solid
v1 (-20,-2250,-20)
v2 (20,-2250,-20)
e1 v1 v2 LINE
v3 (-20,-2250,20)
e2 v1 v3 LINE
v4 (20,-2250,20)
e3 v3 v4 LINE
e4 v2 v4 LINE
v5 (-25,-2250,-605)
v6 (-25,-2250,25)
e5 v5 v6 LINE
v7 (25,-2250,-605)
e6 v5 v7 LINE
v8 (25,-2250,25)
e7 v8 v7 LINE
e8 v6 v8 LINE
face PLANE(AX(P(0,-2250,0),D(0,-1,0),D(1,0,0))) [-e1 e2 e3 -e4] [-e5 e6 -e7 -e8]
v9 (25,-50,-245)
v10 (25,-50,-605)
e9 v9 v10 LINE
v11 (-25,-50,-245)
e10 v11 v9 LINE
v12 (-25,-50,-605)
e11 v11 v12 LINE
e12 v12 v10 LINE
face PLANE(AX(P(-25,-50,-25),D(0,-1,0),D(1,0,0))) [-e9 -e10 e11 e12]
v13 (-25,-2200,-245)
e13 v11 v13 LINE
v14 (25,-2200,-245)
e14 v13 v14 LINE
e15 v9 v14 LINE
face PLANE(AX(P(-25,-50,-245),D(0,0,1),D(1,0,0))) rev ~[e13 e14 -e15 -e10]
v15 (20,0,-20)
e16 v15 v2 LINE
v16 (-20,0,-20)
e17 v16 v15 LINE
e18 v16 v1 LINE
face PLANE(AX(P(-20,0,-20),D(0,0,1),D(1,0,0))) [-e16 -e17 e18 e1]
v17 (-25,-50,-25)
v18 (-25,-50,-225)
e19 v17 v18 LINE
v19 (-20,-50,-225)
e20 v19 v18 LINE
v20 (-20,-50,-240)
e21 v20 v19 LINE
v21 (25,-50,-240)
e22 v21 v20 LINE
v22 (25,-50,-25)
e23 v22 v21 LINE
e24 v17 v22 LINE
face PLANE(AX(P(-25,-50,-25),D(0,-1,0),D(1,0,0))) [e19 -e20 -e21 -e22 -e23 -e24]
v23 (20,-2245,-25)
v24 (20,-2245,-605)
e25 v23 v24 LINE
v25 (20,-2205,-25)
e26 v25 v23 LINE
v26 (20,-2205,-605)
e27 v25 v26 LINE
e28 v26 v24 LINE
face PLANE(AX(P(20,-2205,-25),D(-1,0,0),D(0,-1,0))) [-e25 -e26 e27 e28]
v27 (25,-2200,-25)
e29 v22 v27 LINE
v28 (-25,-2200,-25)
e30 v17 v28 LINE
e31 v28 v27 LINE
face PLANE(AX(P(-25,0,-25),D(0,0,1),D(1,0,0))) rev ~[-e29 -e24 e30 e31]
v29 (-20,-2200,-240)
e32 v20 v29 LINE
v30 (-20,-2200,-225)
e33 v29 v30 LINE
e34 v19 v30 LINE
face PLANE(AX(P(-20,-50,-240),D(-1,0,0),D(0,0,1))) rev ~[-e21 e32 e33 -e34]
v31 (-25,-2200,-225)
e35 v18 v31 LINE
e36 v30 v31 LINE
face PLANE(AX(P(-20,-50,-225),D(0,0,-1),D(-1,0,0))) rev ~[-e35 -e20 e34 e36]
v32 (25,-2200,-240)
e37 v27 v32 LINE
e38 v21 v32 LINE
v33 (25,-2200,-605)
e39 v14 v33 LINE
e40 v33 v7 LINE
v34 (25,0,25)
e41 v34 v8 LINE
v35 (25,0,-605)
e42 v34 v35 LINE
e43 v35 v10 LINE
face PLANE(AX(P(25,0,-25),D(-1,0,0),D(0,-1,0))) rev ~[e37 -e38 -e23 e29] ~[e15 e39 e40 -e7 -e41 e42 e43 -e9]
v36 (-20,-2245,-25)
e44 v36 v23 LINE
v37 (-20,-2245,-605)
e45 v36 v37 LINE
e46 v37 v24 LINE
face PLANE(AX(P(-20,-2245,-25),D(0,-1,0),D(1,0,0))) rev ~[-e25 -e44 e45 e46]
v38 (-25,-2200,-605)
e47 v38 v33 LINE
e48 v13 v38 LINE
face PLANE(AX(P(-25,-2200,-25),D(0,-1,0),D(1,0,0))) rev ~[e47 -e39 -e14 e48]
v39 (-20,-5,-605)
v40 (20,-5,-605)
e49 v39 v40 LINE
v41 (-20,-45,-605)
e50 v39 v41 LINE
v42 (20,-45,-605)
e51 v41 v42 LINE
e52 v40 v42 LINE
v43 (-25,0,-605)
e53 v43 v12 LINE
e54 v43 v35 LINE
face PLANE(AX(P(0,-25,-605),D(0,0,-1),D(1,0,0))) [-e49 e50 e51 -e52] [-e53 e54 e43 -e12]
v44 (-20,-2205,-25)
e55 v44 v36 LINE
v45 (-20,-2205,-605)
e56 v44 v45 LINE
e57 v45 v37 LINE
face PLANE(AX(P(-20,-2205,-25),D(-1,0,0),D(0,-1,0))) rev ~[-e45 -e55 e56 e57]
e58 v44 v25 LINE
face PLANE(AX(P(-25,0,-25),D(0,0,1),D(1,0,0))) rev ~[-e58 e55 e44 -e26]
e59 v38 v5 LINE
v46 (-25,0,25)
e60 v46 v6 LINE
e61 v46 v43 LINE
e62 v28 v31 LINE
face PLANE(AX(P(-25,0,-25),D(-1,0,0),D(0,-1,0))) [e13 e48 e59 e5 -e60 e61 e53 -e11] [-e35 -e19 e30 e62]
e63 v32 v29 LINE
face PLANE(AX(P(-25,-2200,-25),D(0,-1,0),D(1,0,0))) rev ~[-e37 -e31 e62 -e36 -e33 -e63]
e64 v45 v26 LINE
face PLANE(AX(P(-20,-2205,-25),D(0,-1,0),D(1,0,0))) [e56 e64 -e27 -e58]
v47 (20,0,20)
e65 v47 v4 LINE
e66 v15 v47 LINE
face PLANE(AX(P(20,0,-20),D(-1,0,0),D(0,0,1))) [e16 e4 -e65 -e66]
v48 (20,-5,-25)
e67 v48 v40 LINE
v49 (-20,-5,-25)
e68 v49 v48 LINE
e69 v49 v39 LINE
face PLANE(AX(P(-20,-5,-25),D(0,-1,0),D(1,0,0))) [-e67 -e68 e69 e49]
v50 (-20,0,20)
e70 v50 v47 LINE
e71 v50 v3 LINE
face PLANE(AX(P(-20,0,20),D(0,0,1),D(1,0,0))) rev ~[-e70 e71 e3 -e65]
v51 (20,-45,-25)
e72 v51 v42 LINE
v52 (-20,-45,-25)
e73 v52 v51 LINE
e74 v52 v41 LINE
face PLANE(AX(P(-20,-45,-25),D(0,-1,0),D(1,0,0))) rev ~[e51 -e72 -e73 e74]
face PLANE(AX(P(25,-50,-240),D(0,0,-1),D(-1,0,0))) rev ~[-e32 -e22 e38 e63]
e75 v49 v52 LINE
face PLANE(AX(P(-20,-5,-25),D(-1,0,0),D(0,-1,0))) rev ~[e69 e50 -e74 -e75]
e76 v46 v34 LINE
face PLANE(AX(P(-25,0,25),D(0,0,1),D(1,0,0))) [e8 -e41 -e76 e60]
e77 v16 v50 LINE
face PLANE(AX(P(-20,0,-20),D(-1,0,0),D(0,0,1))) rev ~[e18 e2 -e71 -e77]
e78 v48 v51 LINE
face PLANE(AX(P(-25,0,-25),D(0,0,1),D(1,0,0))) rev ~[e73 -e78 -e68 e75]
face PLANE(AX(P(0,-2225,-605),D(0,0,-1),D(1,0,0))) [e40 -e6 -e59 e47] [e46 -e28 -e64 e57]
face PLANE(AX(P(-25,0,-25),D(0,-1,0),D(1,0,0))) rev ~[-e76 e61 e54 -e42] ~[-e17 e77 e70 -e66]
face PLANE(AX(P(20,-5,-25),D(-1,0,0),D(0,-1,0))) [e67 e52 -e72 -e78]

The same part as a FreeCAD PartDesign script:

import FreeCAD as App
import Part
import Sketcher
from FreeCAD import Vector

doc = App.newDocument("Part")
body = doc.addObject("PartDesign::Body", "Body")

sketch1 = doc.addObject("Sketcher::SketchObject", "Sketch")
body.addObject(sketch1)
sketch1.AttachmentSupport = (doc.XZ_Plane, [""])
sketch1.MapMode = "FlatFace"
sketch1.addGeometry([
    Part.LineSegment(Vector(-25, 25, 0), Vector(-25, -25, 0)),
    Part.LineSegment(Vector(-25, -25, 0), Vector(25, -25, 0)),
    Part.LineSegment(Vector(25, -25, 0), Vector(25, 25, 0)),
    Part.LineSegment(Vector(25, 25, 0), Vector(-25, 25, 0)),
    Part.LineSegment(Vector(20, -20, 0), Vector(-20, -20, 0)),
    Part.LineSegment(Vector(-20, -20, 0), Vector(-20, 20, 0)),
    Part.LineSegment(Vector(-20, 20, 0), Vector(20, 20, 0)),
    Part.LineSegment(Vector(20, 20, 0), Vector(20, -20, 0)),
], False)
sketch1.addConstraint([
    Sketcher.Constraint("Coincident", 0, 2, 1, 1),
    Sketcher.Constraint("Coincident", 1, 2, 2, 1),
    Sketcher.Constraint("Coincident", 2, 2, 3, 1),
    Sketcher.Constraint("Coincident", 3, 2, 0, 1),
    Sketcher.Constraint("Coincident", 4, 2, 5, 1),
    Sketcher.Constraint("Coincident", 5, 2, 6, 1),
    Sketcher.Constraint("Coincident", 6, 2, 7, 1),
    Sketcher.Constraint("Coincident", 7, 2, 4, 1),
    Sketcher.Constraint("Vertical", 0),
    Sketcher.Constraint("Horizontal", 1),
    Sketcher.Constraint("Vertical", 2),
    Sketcher.Constraint("Horizontal", 3),
    Sketcher.Constraint("Horizontal", 4),
    Sketcher.Constraint("Vertical", 5),
    Sketcher.Constraint("Horizontal", 6),
    Sketcher.Constraint("Vertical", 7),
    Sketcher.Constraint("Symmetric", 0, 2, 2, 2, -1, 1),
    Sketcher.Constraint("Symmetric", 4, 2, 6, 2, -1, 1),
    Sketcher.Constraint("Equal", 3, 0),
    Sketcher.Constraint("Equal", 6, 5),
    Sketcher.Constraint("DistanceX", 1, 1, 1, 2, 50.0),
    Sketcher.Constraint("DistanceX", 4, 2, 4, 1, 40.0),
])
pad1 = doc.addObject("PartDesign::Pad", "Pad")
body.addObject(pad1)
pad1.Profile = sketch1
pad1.Length = 2250

sketch2 = doc.addObject("Sketcher::SketchObject", "Sketch001")
body.addObject(sketch2)
sketch2.AttachmentSupport = (doc.XY_Plane, [""])
sketch2.MapMode = "FlatFace"
sketch2.AttachmentOffset = App.Placement(Vector(0, 0, -25), App.Rotation())
sketch2.addGeometry([
    Part.LineSegment(Vector(-25, -50, 0), Vector(-25, 0, 0)),
    Part.LineSegment(Vector(-25, 0, 0), Vector(25, 0, 0)),
    Part.LineSegment(Vector(25, 0, 0), Vector(25, -50, 0)),
    Part.LineSegment(Vector(25, -50, 0), Vector(-25, -50, 0)),
    Part.LineSegment(Vector(20, -5, 0), Vector(-20, -5, 0)),
    Part.LineSegment(Vector(-20, -5, 0), Vector(-20, -45, 0)),
    Part.LineSegment(Vector(-20, -45, 0), Vector(20, -45, 0)),
    Part.LineSegment(Vector(20, -45, 0), Vector(20, -5, 0)),
    Part.LineSegment(Vector(-25, -2250, 0), Vector(-25, -2200, 0)),
    Part.LineSegment(Vector(-25, -2200, 0), Vector(25, -2200, 0)),
    Part.LineSegment(Vector(25, -2200, 0), Vector(25, -2250, 0)),
    Part.LineSegment(Vector(25, -2250, 0), Vector(-25, -2250, 0)),
    Part.LineSegment(Vector(20, -2205, 0), Vector(-20, -2205, 0)),
    Part.LineSegment(Vector(-20, -2205, 0), Vector(-20, -2245, 0)),
    Part.LineSegment(Vector(-20, -2245, 0), Vector(20, -2245, 0)),
    Part.LineSegment(Vector(20, -2245, 0), Vector(20, -2205, 0)),
], False)
sketch2.addConstraint([
    Sketcher.Constraint("Coincident", 0, 2, 1, 1),
    Sketcher.Constraint("Coincident", 1, 2, 2, 1),
    Sketcher.Constraint("Coincident", 2, 2, 3, 1),
    Sketcher.Constraint("Coincident", 3, 2, 0, 1),
    Sketcher.Constraint("Coincident", 4, 2, 5, 1),
    Sketcher.Constraint("Coincident", 5, 2, 6, 1),
    Sketcher.Constraint("Coincident", 6, 2, 7, 1),
    Sketcher.Constraint("Coincident", 7, 2, 4, 1),
    Sketcher.Constraint("Coincident", 8, 2, 9, 1),
    Sketcher.Constraint("Coincident", 9, 2, 10, 1),
    Sketcher.Constraint("Coincident", 10, 2, 11, 1),
    Sketcher.Constraint("Coincident", 11, 2, 8, 1),
    Sketcher.Constraint("Coincident", 12, 2, 13, 1),
    Sketcher.Constraint("Coincident", 13, 2, 14, 1),
    Sketcher.Constraint("Coincident", 14, 2, 15, 1),
    Sketcher.Constraint("Coincident", 15, 2, 12, 1),
    Sketcher.Constraint("Vertical", 0),
    Sketcher.Constraint("Horizontal", 1),
    Sketcher.Constraint("Vertical", 2),
    Sketcher.Constraint("Horizontal", 3),
    Sketcher.Constraint("Horizontal", 4),
    Sketcher.Constraint("Vertical", 5),
    Sketcher.Constraint("Horizontal", 6),
    Sketcher.Constraint("Vertical", 7),
    Sketcher.Constraint("Vertical", 8),
    Sketcher.Constraint("Horizontal", 9),
    Sketcher.Constraint("Vertical", 10),
    Sketcher.Constraint("Horizontal", 11),
    Sketcher.Constraint("Horizontal", 12),
    Sketcher.Constraint("Vertical", 13),
    Sketcher.Constraint("Horizontal", 14),
    Sketcher.Constraint("Vertical", 15),
    Sketcher.Constraint("Symmetric", 0, 2, 1, 2, -1, 1),
    Sketcher.Constraint("Vertical", 3, 2, 8, 2),
    Sketcher.Constraint("Vertical", 2, 2, 9, 2),
    Sketcher.Constraint("Vertical", 5, 2, 12, 2),
    Sketcher.Constraint("Vertical", 7, 2, 14, 2),
    Sketcher.Constraint("Equal", 11, 0),
    Sketcher.Constraint("Equal", 14, 5),
    Sketcher.Constraint("Equal", 2, 8),
    Sketcher.Constraint("Equal", 7, 13),
    Sketcher.Constraint("DistanceX", 1, 1, 1, 2, 50.0),
    Sketcher.Constraint("DistanceX", 4, 2, 4, 1, 40.0),
    Sketcher.Constraint("DistanceX", 4, 2, -1, 1, 20.0),
    Sketcher.Constraint("DistanceY", 4, 2, -1, 1, 5.0),
    Sketcher.Constraint("DistanceY", 8, 2, -1, 1, 2200.0),
    Sketcher.Constraint("DistanceY", 12, 2, -1, 1, 2205.0),
])
pad2 = doc.addObject("PartDesign::Pad", "Pad001")
body.addObject(pad2)
pad2.Profile = sketch2
pad2.Length = 580
pad2.Reversed = True

sketch3 = doc.addObject("Sketcher::SketchObject", "Sketch002")
body.addObject(sketch3)
sketch3.AttachmentSupport = (doc.XZ_Plane, [""])
sketch3.MapMode = "FlatFace"
sketch3.AttachmentOffset = App.Placement(Vector(0, 0, 50), App.Rotation())
sketch3.addGeometry([
    Part.LineSegment(Vector(-20, -225, 0), Vector(-25, -225, 0)),
    Part.LineSegment(Vector(-25, -225, 0), Vector(-25, -245, 0)),
    Part.LineSegment(Vector(-25, -245, 0), Vector(25, -245, 0)),
    Part.LineSegment(Vector(25, -245, 0), Vector(25, -240, 0)),
    Part.LineSegment(Vector(25, -240, 0), Vector(-20, -240, 0)),
    Part.LineSegment(Vector(-20, -240, 0), Vector(-20, -225, 0)),
], False)
sketch3.addConstraint([
    Sketcher.Constraint("Coincident", 0, 2, 1, 1),
    Sketcher.Constraint("Coincident", 1, 2, 2, 1),
    Sketcher.Constraint("Coincident", 2, 2, 3, 1),
    Sketcher.Constraint("Coincident", 3, 2, 4, 1),
    Sketcher.Constraint("Coincident", 4, 2, 5, 1),
    Sketcher.Constraint("Coincident", 5, 2, 0, 1),
    Sketcher.Constraint("Horizontal", 0),
    Sketcher.Constraint("Vertical", 1),
    Sketcher.Constraint("Horizontal", 2),
    Sketcher.Constraint("Vertical", 3),
    Sketcher.Constraint("Horizontal", 4),
    Sketcher.Constraint("Vertical", 5),
    Sketcher.Constraint("Equal", 0, 3),
    Sketcher.Constraint("DistanceX", 0, 2, 0, 1, 5.0),
    Sketcher.Constraint("DistanceX", 2, 1, 2, 2, 50.0),
    Sketcher.Constraint("DistanceY", 1, 2, 1, 1, 20.0),
    Sketcher.Constraint("DistanceX", 0, 2, -1, 1, 25.0),
    Sketcher.Constraint("DistanceY", 0, 2, -1, 1, 225.0),
])
pad3 = doc.addObject("PartDesign::Pad", "Pad002")
body.addObject(pad3)
pad3.Profile = sketch3
pad3.Length = 2150

doc.recompute()
